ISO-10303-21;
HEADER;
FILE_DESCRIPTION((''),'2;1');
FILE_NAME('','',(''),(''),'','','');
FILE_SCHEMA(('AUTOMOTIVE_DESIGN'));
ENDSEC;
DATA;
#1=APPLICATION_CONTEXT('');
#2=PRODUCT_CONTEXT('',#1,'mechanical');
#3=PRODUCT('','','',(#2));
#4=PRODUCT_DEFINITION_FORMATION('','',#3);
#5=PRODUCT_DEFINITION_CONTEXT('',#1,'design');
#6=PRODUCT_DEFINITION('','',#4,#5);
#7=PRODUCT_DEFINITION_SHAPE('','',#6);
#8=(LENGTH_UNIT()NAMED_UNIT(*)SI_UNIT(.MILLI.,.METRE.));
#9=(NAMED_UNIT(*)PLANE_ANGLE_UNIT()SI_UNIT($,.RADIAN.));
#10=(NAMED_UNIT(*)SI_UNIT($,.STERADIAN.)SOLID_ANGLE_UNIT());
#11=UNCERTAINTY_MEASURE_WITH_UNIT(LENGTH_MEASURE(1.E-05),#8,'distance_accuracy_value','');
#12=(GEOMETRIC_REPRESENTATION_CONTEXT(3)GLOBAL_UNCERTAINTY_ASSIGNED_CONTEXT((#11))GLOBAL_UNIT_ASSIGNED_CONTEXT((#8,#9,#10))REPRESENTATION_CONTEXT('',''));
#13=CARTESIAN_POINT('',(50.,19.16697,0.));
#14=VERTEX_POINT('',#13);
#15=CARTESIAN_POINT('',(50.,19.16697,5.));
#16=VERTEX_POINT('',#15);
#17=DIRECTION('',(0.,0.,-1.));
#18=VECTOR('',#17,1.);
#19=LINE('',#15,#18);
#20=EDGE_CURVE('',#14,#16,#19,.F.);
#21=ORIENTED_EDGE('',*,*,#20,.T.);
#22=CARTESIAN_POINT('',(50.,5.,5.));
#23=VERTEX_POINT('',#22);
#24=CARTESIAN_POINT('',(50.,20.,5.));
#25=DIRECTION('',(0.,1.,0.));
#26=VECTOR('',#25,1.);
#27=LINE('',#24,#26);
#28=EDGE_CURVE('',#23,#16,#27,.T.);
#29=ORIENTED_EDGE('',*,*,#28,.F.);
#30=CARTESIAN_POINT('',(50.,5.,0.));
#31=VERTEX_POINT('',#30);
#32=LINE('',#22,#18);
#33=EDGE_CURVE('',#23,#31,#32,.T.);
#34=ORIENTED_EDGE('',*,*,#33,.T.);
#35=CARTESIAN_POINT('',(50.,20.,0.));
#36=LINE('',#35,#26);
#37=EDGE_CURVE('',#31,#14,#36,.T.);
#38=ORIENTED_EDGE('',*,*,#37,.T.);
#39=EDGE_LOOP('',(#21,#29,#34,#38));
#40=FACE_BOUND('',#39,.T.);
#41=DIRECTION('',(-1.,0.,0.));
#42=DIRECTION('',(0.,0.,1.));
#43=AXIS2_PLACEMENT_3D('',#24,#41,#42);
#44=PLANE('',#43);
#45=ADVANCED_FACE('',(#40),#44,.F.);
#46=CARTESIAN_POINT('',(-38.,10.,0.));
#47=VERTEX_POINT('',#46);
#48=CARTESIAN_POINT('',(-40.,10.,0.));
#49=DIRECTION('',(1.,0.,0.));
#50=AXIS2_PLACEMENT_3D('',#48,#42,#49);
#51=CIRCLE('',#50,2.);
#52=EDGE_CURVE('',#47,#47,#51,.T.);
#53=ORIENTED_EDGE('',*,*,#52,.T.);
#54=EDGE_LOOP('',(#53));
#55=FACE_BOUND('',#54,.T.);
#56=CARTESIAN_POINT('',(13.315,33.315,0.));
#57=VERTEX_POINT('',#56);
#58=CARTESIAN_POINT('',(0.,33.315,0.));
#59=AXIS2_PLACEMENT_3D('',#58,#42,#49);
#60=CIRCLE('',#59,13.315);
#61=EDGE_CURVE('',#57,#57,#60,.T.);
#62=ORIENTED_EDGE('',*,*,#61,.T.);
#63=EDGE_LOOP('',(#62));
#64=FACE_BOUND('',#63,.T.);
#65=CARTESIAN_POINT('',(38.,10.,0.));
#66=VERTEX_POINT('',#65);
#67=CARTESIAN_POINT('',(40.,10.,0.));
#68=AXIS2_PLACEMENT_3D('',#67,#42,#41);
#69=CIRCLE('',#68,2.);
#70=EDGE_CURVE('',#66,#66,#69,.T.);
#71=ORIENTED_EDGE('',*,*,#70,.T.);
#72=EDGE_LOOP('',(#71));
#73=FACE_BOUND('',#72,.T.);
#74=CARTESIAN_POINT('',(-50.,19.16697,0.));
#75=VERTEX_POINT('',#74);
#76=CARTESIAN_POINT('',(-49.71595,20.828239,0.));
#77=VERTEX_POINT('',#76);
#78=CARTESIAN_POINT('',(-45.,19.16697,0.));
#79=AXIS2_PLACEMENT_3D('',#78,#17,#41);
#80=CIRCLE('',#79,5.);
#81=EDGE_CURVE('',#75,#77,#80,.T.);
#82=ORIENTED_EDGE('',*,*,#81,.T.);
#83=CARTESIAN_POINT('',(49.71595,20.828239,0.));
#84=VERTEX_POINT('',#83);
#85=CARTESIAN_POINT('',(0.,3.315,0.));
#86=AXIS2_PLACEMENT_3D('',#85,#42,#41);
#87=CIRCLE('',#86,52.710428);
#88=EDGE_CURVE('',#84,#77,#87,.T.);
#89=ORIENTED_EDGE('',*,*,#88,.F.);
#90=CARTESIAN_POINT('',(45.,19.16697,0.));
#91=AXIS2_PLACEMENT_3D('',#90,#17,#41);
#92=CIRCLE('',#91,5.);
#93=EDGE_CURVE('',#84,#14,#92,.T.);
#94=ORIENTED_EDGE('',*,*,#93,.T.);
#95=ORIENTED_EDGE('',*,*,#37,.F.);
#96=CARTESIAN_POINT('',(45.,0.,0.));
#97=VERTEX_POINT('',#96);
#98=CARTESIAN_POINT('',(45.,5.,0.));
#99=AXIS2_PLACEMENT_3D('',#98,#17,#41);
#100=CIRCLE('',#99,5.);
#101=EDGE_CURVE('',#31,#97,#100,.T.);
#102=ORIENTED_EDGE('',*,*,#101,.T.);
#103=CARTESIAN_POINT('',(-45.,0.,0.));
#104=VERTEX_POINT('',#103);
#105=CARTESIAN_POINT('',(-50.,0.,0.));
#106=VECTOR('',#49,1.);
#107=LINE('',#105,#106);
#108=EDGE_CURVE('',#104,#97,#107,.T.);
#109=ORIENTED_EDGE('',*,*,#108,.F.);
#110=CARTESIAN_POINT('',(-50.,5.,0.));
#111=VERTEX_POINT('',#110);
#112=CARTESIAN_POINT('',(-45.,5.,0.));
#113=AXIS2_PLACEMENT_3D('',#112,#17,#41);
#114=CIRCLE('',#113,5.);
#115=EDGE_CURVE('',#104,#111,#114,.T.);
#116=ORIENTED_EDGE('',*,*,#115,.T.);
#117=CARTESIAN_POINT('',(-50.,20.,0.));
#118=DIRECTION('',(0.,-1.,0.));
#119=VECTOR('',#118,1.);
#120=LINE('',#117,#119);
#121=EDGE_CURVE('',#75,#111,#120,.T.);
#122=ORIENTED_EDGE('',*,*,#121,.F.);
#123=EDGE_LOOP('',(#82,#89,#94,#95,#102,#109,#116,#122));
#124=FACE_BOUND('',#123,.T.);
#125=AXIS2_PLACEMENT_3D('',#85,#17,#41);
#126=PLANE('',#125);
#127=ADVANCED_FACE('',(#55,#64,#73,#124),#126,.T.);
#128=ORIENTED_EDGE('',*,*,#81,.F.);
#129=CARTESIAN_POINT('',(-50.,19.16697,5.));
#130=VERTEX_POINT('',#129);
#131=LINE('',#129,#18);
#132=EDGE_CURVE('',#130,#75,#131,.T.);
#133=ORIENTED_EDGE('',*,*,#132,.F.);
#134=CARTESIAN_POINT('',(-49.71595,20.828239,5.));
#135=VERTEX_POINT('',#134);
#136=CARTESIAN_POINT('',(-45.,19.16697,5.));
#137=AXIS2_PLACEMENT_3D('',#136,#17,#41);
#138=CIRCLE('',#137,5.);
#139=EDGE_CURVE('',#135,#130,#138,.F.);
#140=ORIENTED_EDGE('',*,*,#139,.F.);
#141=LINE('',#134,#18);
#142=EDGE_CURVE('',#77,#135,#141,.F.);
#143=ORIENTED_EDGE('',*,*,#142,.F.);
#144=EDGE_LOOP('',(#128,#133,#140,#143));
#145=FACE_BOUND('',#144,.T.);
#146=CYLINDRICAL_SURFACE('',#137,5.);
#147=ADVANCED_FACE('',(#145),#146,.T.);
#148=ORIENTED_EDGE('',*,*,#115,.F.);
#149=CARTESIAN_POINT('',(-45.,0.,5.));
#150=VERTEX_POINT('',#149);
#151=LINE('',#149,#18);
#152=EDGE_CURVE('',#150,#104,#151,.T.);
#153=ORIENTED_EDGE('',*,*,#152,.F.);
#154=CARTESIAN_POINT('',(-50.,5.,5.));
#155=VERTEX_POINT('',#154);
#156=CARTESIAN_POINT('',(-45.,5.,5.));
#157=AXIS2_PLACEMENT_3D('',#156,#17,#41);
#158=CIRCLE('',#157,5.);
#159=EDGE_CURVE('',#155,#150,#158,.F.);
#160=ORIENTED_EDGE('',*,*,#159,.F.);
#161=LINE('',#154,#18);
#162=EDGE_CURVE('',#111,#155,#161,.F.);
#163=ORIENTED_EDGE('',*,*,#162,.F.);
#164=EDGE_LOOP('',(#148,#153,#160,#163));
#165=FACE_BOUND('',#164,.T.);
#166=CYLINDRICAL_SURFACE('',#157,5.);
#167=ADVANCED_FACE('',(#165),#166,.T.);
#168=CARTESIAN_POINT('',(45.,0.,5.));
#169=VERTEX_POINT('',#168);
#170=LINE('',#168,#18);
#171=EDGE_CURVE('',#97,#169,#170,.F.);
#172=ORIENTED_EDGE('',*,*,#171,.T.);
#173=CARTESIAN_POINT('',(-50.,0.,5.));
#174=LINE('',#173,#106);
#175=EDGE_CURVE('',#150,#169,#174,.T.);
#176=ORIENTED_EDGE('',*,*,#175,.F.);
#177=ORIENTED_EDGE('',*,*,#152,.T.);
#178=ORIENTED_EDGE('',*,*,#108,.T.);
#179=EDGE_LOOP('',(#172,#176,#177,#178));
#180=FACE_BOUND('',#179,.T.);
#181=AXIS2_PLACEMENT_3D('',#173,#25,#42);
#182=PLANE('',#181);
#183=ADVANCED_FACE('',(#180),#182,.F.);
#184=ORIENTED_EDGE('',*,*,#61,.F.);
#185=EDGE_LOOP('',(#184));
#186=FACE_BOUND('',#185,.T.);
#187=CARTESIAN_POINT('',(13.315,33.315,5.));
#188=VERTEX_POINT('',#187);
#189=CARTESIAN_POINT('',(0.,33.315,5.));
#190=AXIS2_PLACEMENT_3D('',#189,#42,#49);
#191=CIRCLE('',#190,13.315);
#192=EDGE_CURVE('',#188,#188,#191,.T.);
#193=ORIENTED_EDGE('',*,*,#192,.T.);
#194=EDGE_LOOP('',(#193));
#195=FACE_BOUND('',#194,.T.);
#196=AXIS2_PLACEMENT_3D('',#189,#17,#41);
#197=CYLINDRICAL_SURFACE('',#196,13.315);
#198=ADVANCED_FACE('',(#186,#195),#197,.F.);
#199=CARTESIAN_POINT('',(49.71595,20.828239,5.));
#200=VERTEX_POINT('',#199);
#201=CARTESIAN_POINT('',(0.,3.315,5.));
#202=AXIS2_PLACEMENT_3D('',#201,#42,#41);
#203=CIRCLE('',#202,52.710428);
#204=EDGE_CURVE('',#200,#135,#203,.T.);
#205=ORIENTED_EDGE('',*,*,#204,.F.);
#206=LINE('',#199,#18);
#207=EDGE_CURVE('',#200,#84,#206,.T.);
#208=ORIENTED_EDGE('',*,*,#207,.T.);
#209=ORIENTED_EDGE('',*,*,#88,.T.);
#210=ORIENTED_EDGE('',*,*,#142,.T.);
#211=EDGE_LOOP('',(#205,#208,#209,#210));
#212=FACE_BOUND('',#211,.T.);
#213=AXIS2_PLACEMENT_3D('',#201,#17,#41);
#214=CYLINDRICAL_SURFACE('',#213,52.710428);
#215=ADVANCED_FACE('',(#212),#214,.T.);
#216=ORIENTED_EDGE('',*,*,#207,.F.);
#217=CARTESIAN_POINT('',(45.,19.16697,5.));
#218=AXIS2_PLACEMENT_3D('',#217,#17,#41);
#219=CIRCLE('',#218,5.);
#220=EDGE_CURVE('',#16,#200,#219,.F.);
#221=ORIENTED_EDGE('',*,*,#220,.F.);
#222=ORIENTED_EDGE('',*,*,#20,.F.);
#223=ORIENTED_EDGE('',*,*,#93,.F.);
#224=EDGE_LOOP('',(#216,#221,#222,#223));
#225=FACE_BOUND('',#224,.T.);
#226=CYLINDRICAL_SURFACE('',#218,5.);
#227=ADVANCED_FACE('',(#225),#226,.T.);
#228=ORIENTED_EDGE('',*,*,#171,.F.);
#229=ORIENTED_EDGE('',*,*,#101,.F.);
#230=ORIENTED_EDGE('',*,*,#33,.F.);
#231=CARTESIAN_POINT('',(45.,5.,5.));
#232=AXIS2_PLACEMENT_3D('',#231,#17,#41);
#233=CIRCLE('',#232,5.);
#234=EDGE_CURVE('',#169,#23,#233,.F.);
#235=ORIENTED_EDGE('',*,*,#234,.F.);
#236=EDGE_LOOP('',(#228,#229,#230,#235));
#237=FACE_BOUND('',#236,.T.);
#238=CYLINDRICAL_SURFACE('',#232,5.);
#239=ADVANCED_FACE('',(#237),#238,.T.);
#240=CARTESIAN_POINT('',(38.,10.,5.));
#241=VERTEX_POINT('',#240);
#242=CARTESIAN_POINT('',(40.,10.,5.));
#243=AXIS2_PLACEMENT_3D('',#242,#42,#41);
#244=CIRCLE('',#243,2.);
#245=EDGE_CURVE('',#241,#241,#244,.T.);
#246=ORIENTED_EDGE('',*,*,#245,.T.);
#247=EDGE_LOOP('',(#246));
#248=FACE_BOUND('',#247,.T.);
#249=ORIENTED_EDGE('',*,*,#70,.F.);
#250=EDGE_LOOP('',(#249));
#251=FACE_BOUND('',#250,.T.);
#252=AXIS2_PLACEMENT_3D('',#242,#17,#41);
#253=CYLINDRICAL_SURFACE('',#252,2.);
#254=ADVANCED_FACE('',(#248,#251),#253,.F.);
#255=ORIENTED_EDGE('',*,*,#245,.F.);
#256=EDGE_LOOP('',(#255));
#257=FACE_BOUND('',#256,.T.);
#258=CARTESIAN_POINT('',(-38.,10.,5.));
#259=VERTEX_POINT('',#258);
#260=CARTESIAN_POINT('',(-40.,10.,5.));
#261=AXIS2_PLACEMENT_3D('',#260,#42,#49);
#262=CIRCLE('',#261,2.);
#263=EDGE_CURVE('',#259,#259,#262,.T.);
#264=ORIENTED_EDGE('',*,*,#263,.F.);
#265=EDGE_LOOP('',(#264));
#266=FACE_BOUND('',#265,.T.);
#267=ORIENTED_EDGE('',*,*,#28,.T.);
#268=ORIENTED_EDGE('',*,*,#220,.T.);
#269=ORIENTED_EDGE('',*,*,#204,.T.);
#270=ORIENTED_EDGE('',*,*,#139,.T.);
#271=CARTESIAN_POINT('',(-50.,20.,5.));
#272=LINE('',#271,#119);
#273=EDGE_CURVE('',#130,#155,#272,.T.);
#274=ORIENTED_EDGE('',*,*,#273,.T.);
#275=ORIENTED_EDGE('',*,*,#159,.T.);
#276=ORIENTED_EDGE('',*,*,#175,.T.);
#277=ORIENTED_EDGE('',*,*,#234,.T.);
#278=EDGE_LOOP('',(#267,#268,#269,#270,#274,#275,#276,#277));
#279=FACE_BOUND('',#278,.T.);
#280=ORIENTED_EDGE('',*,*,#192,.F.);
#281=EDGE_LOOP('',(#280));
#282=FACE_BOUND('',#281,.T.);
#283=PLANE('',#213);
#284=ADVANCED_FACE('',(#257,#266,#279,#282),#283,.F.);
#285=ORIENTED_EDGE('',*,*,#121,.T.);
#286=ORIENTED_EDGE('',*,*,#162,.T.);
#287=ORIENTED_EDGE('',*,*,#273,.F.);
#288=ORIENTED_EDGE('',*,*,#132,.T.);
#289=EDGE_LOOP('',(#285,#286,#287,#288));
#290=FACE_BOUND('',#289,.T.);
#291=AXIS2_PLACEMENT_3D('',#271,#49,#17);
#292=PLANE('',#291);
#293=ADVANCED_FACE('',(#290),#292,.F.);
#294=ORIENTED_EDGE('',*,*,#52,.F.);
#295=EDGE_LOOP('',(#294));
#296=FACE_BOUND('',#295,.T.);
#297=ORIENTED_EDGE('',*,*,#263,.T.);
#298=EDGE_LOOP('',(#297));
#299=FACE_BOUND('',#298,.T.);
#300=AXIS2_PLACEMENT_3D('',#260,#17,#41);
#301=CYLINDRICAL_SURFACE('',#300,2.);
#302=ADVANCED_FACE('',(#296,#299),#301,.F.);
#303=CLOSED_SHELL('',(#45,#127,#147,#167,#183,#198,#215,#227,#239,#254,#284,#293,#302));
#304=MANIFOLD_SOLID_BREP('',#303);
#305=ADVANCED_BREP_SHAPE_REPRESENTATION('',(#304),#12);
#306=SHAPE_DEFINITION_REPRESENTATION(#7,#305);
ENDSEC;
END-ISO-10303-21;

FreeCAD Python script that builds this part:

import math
import FreeCAD as App
import Part
import Sketcher
Q = App.Units.Quantity


def edges_at(feature, points):
    """Names of the edges that pass closest to the given points."""
    edges = feature.Shape.Edges
    near = lambda p: min(range(len(edges)), key=lambda i: edges[i].distToShape(Part.Vertex(*p))[0])
    return sorted({f"Edge{near(p) + 1}" for p in points})

doc = App.newDocument("Part")
body = doc.addObject("PartDesign::Body", "Body")

# Sketch on XY plane
sketch1 = doc.addObject("Sketcher::SketchObject", "Sketch")
body.addObject(sketch1)
sketch1.AttachmentSupport = (doc.XY_Plane, [""])
sketch1.MapMode = "FlatFace"
sketch1.addGeometry(Part.LineSegment(App.Vector(-50, 20, 0), App.Vector(-50, 0, 0)), False)
sketch1.addGeometry(Part.LineSegment(App.Vector(-50, 0, 0), App.Vector(50, 0, 0)), False)
sketch1.addGeometry(Part.LineSegment(App.Vector(50, 0, 0), App.Vector(50, 20, 0)), False)
sketch1.addGeometry(Part.ArcOfCircle(Part.Circle(App.Vector(0, 3.3, 0), App.Vector(0, 0, 1), 52.7), math.radians(18), math.radians(162)), False)
sketch1.addGeometry(Part.Circle(App.Vector(-40, 10, 0), App.Vector(0, 0, 1), 2), False)
sketch1.addGeometry(Part.Circle(App.Vector(40, 10, 0), App.Vector(0, 0, 1), 2), False)
sketch1.addGeometry(Part.Circle(App.Vector(0, 33.3, 0), App.Vector(0, 0, 1), 13.3), False)
sketch1.addConstraint(Sketcher.Constraint("Coincident", 0, 2, 1, 1))
sketch1.addConstraint(Sketcher.Constraint("Coincident", 1, 2, 2, 1))
sketch1.addConstraint(Sketcher.Constraint("Coincident", 2, 2, 3, 1))
sketch1.addConstraint(Sketcher.Constraint("Coincident", 3, 2, 0, 1))
sketch1.addConstraint(Sketcher.Constraint("Vertical", 0))
sketch1.addConstraint(Sketcher.Constraint("Horizontal", 1))
sketch1.addConstraint(Sketcher.Constraint("Vertical", 2))
sketch1.addConstraint(Sketcher.Constraint("Equal", 4, 5))
sketch1.addConstraint(Sketcher.Constraint("Symmetric", 0, 2, 1, 2, -1, 1))
sketch1.addConstraint(Sketcher.Constraint("Symmetric", 4, 3, 5, 3, -2))
sketch1.addConstraint(Sketcher.Constraint("PointOnObject", 3, 3, -2))
sketch1.addConstraint(Sketcher.Constraint("PointOnObject", 6, 3, -2))
sketch1.addConstraint(Sketcher.Constraint("Diameter", 4, Q("4 mm")))
sketch1.addConstraint(Sketcher.Constraint("Diameter", 6, Q("26.63 mm")))
sketch1.addConstraint(Sketcher.Constraint("DistanceX", 1, 1, 1, 2, Q("100 mm")))
sketch1.addConstraint(Sketcher.Constraint("DistanceY", 0, 2, 0, 1, Q("20 mm")))
sketch1.addConstraint(Sketcher.Constraint("DistanceX", 4, 3, -1, 1, Q("40 mm")))
sketch1.addConstraint(Sketcher.Constraint("DistanceY", -1, 1, 4, 3, Q("10 mm")))
sketch1.addConstraint(Sketcher.Constraint("DistanceY", 3, 3, 6, 3, Q("30 mm")))
sketch1.addConstraint(Sketcher.Constraint("Radius", 3, Q("52.710428 mm")))
pad1 = doc.addObject("PartDesign::Pad", "Pad")
body.addObject(pad1)
pad1.Profile = sketch1
pad1.Length = 5
doc.recompute()

fillet = doc.addObject("PartDesign::Fillet", "Fillet")
body.addObject(fillet)
fillet.Base = (pad1, edges_at(pad1, [
    (50, 20, 2.5),
    (50, 0, 2.5),
    (-50, 0, 2.5),
    (-50, 20, 2.5),
]))
fillet.Radius = 5

doc.recompute()
